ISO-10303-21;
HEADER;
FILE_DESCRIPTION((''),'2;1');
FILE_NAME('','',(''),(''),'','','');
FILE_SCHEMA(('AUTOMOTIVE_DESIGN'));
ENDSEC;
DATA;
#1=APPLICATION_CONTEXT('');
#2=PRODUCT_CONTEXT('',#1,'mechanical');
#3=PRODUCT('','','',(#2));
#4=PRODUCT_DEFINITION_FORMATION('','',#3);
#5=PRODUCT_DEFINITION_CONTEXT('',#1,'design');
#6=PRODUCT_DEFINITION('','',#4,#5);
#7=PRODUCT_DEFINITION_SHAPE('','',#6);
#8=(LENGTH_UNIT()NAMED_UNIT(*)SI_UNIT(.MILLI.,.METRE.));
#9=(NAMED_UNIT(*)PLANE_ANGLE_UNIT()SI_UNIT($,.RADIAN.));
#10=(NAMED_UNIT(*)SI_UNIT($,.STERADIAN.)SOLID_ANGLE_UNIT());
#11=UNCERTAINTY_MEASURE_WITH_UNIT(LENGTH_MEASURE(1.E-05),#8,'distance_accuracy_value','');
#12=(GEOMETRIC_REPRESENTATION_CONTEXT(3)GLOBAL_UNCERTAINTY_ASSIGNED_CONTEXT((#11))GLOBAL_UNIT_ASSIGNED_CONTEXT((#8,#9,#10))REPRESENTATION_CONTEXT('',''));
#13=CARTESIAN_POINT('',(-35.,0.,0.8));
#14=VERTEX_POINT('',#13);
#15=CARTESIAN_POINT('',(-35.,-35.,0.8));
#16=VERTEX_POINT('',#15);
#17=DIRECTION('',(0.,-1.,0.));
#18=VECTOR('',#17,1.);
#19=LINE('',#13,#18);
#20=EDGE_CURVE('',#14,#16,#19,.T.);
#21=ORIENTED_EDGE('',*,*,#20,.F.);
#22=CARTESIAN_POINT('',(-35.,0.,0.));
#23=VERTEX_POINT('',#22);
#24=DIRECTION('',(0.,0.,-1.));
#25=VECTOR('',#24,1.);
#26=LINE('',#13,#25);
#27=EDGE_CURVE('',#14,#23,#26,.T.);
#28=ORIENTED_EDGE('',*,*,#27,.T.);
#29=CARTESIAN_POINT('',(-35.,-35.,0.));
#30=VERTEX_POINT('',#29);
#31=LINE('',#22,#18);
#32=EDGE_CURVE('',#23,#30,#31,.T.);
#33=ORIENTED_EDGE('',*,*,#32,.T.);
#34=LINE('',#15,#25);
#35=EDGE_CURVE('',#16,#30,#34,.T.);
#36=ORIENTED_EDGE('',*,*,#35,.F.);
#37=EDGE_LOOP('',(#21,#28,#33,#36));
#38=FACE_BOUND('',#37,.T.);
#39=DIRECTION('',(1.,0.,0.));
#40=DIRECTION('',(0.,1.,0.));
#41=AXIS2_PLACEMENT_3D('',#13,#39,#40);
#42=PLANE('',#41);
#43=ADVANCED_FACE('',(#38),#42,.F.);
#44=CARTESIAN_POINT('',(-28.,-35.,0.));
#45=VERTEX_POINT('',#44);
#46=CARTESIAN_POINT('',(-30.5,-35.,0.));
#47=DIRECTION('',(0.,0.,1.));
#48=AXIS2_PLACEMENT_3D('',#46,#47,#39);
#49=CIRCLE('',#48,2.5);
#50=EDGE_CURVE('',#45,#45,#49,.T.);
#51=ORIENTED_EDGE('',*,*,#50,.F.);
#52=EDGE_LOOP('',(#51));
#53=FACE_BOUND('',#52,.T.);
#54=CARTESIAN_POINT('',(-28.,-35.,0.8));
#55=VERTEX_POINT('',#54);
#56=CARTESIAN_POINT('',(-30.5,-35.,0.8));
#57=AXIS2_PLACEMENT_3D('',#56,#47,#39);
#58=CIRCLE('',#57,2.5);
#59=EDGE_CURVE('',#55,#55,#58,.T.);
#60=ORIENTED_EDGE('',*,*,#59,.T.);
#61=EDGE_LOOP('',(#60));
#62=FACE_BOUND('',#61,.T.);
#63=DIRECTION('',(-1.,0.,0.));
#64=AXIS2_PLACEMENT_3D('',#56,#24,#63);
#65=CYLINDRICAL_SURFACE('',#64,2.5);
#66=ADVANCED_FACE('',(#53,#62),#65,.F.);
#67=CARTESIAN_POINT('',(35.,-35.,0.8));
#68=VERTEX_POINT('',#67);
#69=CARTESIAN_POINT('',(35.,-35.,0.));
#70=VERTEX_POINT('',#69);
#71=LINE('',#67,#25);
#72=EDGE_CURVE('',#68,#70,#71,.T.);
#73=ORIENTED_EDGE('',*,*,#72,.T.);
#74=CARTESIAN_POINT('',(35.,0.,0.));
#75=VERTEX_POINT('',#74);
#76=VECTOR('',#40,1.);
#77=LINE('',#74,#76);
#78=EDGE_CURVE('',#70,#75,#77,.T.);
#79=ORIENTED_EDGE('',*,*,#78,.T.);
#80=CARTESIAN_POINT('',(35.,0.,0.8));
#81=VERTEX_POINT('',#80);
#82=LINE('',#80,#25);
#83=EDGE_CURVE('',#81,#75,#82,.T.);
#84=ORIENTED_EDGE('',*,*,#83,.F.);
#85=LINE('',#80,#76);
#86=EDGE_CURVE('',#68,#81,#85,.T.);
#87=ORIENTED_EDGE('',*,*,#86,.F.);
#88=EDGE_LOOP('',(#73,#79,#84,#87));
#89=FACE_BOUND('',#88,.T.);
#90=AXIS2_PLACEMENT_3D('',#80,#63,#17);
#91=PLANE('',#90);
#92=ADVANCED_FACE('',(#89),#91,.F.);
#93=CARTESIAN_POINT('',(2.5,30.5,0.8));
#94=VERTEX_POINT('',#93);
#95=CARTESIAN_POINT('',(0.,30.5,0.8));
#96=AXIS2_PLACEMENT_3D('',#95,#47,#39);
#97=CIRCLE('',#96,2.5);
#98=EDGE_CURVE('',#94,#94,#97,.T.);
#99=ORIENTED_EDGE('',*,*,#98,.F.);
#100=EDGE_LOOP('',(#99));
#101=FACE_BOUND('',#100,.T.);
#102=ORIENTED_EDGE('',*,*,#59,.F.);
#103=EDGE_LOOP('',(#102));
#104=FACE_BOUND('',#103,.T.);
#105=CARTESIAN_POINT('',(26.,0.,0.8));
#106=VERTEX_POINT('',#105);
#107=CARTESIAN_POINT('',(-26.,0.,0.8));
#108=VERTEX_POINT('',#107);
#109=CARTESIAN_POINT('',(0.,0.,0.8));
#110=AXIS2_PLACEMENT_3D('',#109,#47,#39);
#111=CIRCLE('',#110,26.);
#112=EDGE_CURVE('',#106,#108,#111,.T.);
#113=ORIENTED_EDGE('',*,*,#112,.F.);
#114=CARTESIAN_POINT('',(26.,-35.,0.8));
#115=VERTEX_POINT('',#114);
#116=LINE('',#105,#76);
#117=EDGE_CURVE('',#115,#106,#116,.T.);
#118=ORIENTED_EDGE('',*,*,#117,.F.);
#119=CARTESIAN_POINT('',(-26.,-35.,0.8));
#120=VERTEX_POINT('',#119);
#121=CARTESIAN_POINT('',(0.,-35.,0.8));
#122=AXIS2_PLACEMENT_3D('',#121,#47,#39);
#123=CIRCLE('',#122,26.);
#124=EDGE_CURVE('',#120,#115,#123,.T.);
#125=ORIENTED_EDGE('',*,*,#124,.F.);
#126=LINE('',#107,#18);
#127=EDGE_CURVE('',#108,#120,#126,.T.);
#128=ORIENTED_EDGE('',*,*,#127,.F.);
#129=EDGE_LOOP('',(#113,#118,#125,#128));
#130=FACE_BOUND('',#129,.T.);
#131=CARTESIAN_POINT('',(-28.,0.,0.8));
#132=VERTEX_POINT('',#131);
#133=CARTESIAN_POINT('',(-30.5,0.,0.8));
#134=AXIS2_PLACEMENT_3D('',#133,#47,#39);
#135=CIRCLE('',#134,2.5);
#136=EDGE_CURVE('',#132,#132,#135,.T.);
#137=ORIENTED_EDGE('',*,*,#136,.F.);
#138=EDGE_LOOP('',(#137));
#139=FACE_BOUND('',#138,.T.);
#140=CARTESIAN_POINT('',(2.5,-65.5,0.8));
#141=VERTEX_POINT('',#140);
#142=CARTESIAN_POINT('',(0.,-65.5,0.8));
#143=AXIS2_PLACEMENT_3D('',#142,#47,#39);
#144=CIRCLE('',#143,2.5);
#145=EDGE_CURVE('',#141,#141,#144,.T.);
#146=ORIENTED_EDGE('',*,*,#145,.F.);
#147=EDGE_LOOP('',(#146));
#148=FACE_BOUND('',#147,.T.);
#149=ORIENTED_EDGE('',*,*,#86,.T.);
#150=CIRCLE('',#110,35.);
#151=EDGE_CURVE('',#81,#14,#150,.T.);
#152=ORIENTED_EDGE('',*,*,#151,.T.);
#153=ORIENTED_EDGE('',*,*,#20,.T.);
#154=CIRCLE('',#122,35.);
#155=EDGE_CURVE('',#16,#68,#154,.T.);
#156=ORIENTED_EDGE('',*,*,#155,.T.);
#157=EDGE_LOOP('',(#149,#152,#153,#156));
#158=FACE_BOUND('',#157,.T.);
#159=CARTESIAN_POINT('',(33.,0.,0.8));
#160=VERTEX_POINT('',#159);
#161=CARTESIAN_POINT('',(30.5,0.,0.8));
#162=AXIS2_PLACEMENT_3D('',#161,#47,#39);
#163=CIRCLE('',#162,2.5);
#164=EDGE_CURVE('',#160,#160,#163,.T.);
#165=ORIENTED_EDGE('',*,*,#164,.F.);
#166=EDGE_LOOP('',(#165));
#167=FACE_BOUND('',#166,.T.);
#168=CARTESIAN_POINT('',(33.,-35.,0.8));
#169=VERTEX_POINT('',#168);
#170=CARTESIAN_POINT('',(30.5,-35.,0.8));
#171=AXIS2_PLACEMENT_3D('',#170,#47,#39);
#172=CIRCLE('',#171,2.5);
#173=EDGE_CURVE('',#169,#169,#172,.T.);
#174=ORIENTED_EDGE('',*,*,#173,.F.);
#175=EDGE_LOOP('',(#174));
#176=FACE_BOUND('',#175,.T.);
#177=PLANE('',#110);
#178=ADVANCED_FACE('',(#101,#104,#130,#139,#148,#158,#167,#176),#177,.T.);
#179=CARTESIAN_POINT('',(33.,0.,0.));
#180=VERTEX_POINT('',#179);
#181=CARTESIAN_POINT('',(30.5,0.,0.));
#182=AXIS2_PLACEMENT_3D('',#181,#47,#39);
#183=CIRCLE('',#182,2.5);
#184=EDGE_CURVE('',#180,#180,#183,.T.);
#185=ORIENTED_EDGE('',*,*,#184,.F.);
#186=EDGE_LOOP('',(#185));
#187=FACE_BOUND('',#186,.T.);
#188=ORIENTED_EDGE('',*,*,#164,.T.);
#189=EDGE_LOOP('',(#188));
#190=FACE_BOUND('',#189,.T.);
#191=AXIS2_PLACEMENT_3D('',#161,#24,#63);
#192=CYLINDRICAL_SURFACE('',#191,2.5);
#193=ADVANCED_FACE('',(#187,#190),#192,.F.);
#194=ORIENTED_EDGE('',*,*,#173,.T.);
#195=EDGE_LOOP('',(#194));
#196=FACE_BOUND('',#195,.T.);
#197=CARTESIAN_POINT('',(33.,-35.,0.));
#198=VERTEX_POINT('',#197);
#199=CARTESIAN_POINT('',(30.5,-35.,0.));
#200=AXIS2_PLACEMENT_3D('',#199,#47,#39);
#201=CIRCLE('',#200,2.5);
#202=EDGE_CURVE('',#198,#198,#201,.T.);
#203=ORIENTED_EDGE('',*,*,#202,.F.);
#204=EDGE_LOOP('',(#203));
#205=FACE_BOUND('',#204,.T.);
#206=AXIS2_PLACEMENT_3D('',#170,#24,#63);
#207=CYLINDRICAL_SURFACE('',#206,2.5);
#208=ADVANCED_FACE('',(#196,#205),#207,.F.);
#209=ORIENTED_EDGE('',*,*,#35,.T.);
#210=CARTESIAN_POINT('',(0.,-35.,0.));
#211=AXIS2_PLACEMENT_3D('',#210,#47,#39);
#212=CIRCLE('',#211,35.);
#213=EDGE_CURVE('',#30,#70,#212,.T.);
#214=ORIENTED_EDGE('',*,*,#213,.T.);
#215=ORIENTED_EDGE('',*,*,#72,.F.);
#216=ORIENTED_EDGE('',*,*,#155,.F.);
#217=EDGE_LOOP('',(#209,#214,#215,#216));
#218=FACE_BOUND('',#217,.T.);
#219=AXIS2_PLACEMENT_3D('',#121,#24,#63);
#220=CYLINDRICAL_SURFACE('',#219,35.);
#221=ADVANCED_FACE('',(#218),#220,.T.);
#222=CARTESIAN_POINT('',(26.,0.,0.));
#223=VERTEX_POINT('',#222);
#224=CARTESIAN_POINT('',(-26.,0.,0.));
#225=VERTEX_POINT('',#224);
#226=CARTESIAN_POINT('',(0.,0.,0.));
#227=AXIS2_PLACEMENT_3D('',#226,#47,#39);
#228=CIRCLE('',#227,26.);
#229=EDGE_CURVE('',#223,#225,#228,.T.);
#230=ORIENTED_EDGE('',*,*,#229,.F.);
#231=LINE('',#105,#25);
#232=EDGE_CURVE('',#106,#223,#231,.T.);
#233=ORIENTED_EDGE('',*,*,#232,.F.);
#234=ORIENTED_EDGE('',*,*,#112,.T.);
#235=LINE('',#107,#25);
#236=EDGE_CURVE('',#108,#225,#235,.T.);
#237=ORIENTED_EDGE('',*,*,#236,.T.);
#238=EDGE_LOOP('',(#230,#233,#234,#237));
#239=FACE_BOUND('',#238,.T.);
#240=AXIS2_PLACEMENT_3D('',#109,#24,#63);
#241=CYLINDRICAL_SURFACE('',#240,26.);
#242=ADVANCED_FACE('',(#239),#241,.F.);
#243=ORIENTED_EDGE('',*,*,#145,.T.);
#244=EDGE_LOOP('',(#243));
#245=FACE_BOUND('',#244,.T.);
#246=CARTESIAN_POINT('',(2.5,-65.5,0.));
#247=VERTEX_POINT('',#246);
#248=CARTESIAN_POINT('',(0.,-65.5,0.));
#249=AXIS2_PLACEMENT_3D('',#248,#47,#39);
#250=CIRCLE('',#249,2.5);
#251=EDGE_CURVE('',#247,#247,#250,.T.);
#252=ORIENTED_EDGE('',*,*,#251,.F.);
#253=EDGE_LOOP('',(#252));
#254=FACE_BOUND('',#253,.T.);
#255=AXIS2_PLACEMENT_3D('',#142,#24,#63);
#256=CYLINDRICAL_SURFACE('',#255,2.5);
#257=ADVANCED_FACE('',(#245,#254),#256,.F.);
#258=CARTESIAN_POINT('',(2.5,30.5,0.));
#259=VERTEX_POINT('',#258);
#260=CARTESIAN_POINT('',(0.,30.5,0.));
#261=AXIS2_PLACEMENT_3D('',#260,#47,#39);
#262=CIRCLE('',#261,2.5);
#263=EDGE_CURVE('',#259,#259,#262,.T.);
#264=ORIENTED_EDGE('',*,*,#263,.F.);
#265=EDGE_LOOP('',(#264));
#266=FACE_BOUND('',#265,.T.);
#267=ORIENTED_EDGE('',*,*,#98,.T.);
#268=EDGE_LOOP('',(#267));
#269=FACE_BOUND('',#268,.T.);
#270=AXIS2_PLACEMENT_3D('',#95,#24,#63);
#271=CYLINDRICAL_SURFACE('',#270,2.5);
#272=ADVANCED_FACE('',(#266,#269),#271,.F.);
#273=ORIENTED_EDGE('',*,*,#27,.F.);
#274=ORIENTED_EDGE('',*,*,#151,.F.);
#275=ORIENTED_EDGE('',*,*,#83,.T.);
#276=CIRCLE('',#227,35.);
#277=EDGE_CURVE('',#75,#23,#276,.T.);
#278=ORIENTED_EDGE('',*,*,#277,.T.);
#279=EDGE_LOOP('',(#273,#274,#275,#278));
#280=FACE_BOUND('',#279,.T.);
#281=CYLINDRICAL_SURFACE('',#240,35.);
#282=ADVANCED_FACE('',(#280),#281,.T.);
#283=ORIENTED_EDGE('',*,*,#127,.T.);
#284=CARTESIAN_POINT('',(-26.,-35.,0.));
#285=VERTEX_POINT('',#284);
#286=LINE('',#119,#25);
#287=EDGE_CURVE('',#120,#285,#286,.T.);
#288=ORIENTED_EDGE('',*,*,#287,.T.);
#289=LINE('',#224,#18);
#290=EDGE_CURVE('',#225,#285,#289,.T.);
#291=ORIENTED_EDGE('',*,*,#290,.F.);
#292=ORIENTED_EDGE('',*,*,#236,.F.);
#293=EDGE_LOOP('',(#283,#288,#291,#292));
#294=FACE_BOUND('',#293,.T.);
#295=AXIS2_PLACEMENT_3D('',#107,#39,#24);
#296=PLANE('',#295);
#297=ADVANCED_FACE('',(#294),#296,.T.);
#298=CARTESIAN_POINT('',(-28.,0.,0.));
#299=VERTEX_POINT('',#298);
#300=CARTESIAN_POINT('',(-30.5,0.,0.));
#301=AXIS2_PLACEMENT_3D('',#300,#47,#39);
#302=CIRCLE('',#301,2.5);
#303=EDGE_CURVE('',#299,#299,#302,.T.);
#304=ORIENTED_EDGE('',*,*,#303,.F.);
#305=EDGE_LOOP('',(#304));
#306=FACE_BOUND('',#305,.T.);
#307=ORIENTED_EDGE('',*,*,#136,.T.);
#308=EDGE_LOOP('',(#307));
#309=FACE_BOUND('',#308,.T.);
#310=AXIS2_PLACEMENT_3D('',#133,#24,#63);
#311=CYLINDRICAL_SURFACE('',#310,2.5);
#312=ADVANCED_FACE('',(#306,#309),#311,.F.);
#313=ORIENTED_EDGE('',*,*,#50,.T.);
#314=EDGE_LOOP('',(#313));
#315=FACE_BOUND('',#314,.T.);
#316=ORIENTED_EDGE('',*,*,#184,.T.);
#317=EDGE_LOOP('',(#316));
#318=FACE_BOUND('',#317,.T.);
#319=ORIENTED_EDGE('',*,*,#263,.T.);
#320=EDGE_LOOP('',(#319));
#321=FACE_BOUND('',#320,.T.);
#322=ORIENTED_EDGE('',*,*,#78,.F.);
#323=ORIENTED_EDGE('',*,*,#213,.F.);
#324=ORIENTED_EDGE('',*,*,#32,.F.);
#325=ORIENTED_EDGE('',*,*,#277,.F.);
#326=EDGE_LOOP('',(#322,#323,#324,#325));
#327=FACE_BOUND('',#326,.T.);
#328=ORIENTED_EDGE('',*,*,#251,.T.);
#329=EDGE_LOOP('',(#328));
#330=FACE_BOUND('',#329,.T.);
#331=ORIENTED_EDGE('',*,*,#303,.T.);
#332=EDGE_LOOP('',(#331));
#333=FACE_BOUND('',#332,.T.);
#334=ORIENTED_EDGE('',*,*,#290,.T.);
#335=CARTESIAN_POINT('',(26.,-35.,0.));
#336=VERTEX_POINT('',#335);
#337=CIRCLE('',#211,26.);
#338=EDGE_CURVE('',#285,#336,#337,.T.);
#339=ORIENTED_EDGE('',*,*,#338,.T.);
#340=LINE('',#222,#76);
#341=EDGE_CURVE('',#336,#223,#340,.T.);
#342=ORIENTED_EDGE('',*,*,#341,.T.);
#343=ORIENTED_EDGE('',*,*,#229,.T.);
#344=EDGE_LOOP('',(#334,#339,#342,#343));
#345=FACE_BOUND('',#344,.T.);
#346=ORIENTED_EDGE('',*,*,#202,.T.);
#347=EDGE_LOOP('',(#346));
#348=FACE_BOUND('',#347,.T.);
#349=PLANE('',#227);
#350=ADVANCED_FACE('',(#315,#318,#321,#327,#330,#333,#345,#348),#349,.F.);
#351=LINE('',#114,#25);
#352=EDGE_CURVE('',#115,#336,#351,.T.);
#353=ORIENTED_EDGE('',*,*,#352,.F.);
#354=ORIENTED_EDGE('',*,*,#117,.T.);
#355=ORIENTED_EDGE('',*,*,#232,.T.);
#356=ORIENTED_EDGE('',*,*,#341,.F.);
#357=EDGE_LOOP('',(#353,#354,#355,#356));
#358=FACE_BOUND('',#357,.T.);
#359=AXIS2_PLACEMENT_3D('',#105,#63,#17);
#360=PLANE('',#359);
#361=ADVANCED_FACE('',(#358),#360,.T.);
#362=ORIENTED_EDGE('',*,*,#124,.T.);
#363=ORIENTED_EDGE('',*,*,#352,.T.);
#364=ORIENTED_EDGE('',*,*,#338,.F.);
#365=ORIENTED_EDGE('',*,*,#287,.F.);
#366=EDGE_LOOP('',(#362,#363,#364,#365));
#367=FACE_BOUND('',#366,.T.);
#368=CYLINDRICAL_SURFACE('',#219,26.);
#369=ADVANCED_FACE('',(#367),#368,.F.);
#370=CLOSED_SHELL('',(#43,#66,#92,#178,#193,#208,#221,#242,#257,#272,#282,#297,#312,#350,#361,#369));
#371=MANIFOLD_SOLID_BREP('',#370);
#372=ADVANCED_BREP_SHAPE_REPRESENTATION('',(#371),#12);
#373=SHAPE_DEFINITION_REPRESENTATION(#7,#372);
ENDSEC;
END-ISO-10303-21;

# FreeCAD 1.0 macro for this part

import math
import FreeCAD as App
import Part
import Sketcher

doc = App.newDocument("Part")
body = doc.addObject("PartDesign::Body", "Body")

# Sketch on XY plane
sketch1 = body.newObject("Sketcher::SketchObject", "Sketch")
sketch1.AttachmentSupport = (doc.getObject("XY_Plane"), [""])
sketch1.MapMode = "FlatFace"
sketch1.addGeometry([
    Part.LineSegment(App.Vector(-35, 0, 0), App.Vector(-35, -35, 0)),  # 0
    Part.ArcOfCircle(Part.Circle(App.Vector(0, -35, 0), App.Vector(0, 0, 1), 35), math.radians(180), math.radians(360)),  # 1
    Part.LineSegment(App.Vector(35, -35, 0), App.Vector(35, 0, 0)),  # 2
    Part.ArcOfCircle(Part.Circle(App.Vector(0, 0, 0), App.Vector(0, 0, 1), 35), math.radians(0), math.radians(180)),  # 3
    Part.Circle(App.Vector(-30.5, -35, 0), App.Vector(0, 0, 1), 2.5),  # 4
    Part.Circle(App.Vector(0, -65.5, 0), App.Vector(0, 0, 1), 2.5),  # 5
    Part.Circle(App.Vector(30.5, -35, 0), App.Vector(0, 0, 1), 2.5),  # 6
    Part.Circle(App.Vector(-30.5, 0, 0), App.Vector(0, 0, 1), 2.5),  # 7
    Part.LineSegment(App.Vector(-26, -35, 0), App.Vector(-26, 0, 0)),  # 8
    Part.ArcOfCircle(Part.Circle(App.Vector(0, 0, 0), App.Vector(0, 0, 1), 26), math.radians(0), math.radians(180)),  # 9
    Part.LineSegment(App.Vector(26, 0, 0), App.Vector(26, -35, 0)),  # 10
    Part.ArcOfCircle(Part.Circle(App.Vector(0, -35, 0), App.Vector(0, 0, 1), 26), math.radians(180), math.radians(360)),  # 11
    Part.Circle(App.Vector(30.5, 0, 0), App.Vector(0, 0, 1), 2.5),  # 12
    Part.Circle(App.Vector(0, 30.5, 0), App.Vector(0, 0, 1), 2.5),  # 13
], False)
sketch1.addConstraint([
    Sketcher.Constraint("Tangent", 0, 2, 1, 1),
    Sketcher.Constraint("Tangent", 1, 2, 2, 1),
    Sketcher.Constraint("Tangent", 2, 2, 3, 1),
    Sketcher.Constraint("Tangent", 3, 2, 0, 1),
    Sketcher.Constraint("Tangent", 8, 2, 9, 2),
    Sketcher.Constraint("Tangent", 9, 1, 10, 1),
    Sketcher.Constraint("Tangent", 10, 2, 11, 2),
    Sketcher.Constraint("Tangent", 11, 1, 8, 1),
    Sketcher.Constraint("Vertical", 0),
    Sketcher.Constraint("Vertical", 2),
    Sketcher.Constraint("Vertical", 8),
    Sketcher.Constraint("Vertical", 10),
    Sketcher.Constraint("Coincident", 3, 3, -1, 1),
    Sketcher.Constraint("Coincident", 9, 3, -1, 1),
    Sketcher.Constraint("Equal", 4, 5),
    Sketcher.Constraint("Equal", 5, 6),
    Sketcher.Constraint("Equal", 6, 7),
    Sketcher.Constraint("Equal", 7, 12),
    Sketcher.Constraint("Equal", 12, 13),
    Sketcher.Constraint("Symmetric", 7, 3, 12, 3, -1, 1),
    Sketcher.Constraint("Symmetric", 4, 3, 6, 3, -2),
    Sketcher.Constraint("PointOnObject", 5, 3, -2),
    Sketcher.Constraint("PointOnObject", 7, 3, -1),
    Sketcher.Constraint("PointOnObject", 13, 3, -2),
    Sketcher.Constraint("Horizontal", 1, 3, 4, 3),
    Sketcher.Constraint("Horizontal", 6, 3, 11, 3),
    Sketcher.Constraint("Vertical", 4, 3, 7, 3),
    Sketcher.Constraint("Diameter", 4, 5.0),
    Sketcher.Constraint("Radius", 1, 35.0),
    Sketcher.Constraint("Radius", 9, 26.0),
    Sketcher.Constraint("DistanceY", 0, 2, 0, 1, 35.0),
    Sketcher.Constraint("DistanceX", 4, 3, 6, 3, 61.0),
    Sketcher.Constraint("DistanceY", 5, 3, -1, 1, 65.5),
    Sketcher.Constraint("DistanceY", -1, 1, 13, 3, 30.5),
])
pad1 = body.newObject("PartDesign::Pad", "Pad")
pad1.Profile = sketch1
pad1.Length = 0.8

doc.recompute()
